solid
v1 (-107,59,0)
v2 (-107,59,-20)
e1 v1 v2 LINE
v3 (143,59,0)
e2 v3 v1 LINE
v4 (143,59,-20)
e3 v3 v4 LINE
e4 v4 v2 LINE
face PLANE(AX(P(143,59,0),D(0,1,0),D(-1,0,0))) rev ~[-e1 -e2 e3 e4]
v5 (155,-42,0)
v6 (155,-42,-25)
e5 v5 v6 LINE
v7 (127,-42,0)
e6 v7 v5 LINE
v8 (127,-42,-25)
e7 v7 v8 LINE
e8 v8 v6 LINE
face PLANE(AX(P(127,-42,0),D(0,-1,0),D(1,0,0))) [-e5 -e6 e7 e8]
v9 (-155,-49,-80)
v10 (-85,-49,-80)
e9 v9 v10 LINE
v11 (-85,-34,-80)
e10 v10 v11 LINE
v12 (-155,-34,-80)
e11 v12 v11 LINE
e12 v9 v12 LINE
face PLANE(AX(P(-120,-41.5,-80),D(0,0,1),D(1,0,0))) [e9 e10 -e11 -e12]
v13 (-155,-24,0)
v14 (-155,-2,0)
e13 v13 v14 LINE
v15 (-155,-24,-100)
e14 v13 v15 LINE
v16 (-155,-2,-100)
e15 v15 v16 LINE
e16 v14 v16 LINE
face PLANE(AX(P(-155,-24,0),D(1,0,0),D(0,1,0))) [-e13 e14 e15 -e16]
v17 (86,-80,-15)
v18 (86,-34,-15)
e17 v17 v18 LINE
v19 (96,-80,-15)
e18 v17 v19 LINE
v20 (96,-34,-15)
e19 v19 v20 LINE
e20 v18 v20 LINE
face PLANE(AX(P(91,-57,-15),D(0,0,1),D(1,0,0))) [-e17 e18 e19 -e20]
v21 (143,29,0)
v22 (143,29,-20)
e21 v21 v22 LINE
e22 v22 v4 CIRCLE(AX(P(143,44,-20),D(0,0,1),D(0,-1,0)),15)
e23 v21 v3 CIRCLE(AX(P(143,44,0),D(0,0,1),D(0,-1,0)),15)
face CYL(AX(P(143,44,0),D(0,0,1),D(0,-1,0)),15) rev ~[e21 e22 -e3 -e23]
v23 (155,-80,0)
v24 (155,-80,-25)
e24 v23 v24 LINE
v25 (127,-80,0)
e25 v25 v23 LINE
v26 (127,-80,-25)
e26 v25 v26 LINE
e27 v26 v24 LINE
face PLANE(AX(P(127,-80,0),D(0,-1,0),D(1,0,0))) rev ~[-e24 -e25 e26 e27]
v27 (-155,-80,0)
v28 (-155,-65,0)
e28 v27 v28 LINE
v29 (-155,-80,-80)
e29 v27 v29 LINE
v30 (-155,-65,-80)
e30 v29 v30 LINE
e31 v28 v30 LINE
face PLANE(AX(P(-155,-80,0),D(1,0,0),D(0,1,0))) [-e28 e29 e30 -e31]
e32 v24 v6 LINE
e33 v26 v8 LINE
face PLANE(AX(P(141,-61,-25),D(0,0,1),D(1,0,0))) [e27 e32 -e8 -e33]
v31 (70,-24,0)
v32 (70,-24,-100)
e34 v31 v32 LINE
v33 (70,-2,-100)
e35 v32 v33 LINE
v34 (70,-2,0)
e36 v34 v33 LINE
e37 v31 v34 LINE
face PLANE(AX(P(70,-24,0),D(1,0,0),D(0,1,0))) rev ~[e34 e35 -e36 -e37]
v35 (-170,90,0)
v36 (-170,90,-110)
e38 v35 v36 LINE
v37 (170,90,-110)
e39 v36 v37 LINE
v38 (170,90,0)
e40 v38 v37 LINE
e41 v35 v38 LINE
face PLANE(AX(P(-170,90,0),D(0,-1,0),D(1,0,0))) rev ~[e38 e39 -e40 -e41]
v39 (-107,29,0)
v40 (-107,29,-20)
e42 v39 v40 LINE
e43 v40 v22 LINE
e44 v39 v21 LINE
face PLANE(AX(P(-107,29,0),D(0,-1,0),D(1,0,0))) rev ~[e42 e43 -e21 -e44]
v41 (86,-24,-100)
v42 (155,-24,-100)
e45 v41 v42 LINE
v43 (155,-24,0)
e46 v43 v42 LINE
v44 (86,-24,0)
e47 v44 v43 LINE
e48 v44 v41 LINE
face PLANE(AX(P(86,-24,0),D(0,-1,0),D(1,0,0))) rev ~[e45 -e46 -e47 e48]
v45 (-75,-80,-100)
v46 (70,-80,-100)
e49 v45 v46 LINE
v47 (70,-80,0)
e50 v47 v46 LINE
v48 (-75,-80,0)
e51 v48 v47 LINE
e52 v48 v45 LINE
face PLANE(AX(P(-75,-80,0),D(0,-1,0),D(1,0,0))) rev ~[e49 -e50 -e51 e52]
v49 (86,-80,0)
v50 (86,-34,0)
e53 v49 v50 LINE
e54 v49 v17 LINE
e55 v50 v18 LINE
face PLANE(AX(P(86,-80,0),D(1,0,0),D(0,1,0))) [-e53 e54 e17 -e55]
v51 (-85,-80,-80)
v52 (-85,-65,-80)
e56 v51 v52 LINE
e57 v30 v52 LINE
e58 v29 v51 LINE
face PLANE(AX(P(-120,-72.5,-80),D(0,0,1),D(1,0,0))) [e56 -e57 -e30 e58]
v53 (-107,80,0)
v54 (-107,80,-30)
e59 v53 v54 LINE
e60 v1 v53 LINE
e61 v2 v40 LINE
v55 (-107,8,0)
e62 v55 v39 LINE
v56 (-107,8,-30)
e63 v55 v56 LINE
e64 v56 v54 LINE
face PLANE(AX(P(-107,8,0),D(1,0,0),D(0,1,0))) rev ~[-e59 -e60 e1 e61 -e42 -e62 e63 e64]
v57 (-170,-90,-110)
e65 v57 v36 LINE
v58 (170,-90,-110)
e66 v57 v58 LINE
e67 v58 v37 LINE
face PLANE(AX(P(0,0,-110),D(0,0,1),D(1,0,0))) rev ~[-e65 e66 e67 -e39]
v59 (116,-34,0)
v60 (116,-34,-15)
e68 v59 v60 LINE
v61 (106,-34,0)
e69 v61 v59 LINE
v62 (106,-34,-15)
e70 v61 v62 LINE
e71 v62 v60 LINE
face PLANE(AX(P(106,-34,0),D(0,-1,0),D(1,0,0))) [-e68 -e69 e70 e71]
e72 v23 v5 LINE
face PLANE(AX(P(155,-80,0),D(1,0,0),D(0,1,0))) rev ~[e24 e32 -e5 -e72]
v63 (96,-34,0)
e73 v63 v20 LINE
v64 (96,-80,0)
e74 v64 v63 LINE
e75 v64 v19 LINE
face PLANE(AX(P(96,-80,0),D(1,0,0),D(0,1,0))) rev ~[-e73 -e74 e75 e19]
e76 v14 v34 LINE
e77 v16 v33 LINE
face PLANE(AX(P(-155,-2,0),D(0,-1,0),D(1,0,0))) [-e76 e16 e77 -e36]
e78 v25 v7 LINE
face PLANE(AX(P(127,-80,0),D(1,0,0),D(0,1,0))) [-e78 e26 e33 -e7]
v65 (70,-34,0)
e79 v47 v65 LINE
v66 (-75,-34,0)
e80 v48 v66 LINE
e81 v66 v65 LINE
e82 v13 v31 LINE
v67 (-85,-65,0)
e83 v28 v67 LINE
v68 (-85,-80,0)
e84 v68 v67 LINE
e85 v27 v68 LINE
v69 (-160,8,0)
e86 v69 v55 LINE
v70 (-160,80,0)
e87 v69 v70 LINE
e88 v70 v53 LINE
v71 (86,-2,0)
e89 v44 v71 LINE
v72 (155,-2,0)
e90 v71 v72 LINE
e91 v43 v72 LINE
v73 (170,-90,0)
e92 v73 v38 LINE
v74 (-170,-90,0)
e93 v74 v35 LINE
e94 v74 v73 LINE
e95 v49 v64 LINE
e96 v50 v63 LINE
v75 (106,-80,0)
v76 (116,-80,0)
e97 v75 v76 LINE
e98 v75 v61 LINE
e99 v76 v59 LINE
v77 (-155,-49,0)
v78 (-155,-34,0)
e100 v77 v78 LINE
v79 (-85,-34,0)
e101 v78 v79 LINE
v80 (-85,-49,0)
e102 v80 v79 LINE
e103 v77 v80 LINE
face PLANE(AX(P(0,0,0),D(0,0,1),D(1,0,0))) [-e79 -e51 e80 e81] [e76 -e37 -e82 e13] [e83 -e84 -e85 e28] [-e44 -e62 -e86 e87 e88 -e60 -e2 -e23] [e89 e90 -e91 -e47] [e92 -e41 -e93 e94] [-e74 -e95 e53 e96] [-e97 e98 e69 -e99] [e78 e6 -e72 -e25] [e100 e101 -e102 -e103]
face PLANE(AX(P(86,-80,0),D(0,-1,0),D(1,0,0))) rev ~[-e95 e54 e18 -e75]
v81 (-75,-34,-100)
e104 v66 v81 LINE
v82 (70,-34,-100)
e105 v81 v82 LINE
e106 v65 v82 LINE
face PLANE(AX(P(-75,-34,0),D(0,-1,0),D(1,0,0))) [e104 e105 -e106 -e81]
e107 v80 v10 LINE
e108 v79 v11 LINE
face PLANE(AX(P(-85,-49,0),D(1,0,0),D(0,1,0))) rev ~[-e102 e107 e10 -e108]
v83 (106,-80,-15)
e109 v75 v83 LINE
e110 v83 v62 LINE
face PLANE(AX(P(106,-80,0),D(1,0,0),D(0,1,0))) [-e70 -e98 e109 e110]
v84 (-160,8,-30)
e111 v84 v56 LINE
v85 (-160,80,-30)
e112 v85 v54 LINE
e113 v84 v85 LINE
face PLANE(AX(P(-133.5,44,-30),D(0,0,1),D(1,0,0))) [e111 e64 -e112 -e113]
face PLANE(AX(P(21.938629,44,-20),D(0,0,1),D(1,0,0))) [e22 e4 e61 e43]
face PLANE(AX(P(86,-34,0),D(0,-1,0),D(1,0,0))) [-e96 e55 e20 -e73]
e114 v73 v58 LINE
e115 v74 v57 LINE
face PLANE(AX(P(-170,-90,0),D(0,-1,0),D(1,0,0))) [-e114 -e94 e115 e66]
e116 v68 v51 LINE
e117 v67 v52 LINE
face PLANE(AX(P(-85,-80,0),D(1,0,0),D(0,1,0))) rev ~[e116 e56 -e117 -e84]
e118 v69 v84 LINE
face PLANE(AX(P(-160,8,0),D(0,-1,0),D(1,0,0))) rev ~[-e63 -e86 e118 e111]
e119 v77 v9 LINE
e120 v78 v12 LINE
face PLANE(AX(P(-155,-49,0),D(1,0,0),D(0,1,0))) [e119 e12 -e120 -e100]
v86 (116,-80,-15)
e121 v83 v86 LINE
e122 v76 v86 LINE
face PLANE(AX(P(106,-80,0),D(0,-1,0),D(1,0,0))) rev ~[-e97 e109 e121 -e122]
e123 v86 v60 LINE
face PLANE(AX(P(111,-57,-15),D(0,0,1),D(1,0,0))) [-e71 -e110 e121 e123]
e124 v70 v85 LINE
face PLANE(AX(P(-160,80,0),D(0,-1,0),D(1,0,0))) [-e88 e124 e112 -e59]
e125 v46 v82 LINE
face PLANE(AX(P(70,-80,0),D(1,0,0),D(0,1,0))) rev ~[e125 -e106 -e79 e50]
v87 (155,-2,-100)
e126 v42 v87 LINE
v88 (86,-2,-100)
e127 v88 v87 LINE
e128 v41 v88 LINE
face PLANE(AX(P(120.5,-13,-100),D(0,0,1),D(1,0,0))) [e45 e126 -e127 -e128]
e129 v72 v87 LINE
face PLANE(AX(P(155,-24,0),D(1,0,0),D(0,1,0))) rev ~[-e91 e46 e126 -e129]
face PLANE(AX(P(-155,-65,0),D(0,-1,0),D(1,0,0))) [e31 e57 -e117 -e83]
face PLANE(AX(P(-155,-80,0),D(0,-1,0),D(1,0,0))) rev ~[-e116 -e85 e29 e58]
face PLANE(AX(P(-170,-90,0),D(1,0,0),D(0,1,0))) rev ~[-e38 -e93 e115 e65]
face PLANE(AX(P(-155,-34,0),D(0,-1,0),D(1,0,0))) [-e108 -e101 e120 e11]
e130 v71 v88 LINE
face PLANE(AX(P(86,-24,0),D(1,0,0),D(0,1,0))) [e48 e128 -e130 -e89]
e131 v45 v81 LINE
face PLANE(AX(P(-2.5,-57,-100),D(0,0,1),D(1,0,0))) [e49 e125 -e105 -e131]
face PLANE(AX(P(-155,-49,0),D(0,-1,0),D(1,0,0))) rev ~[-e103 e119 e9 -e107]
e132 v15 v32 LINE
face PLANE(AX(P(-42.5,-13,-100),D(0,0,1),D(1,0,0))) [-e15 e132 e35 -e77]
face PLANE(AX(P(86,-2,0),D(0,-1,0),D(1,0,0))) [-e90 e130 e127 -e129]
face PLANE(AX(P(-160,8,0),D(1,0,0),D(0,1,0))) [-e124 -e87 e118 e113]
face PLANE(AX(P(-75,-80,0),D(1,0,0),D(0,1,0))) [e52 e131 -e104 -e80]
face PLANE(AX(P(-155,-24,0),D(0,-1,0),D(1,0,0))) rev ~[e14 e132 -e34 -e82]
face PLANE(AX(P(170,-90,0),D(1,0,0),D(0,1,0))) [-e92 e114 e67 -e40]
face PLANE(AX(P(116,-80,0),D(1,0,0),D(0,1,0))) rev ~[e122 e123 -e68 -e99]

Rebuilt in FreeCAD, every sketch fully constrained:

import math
import FreeCAD as App
import Part
import Sketcher
Q = App.Units.Quantity

doc = App.newDocument("Part")
params = doc.addObject("Spreadsheet::Sheet", "Params")
for row, (alias, value) in enumerate([
    ("sketch1_width", "340 mm"),
    ("sketch1_height", "180 mm"),
    ("pad1_length", "110 mm"),
    ("sketch2_width", "53 mm"),
    ("sketch2_height", "72 mm"),
    ("pocket1_length", "30 mm"),
    ("sketch3_radius", "15 mm"),
    ("sketch3_width", "250 mm"),
    ("pocket2_length", "20 mm"),
    ("sketch4_width", "225 mm"),
    ("sketch4_height", "22 mm"),
    ("pocket3_length", "100 mm"),
    ("sketch5_width", "70 mm"),
    ("sketch5_height", "15 mm"),
    ("pocket4_length", "80 mm"),
    ("sketch6_width", "145 mm"),
    ("sketch6_height", "46 mm"),
    ("pocket5_length", "100 mm"),
    ("sketch7_width", "69 mm"),
    ("sketch7_height", "22 mm"),
    ("pocket6_length", "100 mm"),
    ("sketch8_width", "10 mm"),
    ("sketch8_height", "46 mm"),
    ("pocket7_length", "15 mm"),
    ("sketch9_width", "28 mm"),
    ("sketch9_height", "38 mm"),
    ("pocket8_length", "25 mm"),
], start=1):
    params.set(f"A{row}", alias)
    params.set(f"B{row}", "=" + value)
    params.setAlias(f"B{row}", alias)

body = doc.addObject("PartDesign::Body", "Body")

# Sketch on XY plane
sketch1 = body.newObject("Sketcher::SketchObject", "Sketch")
sketch1.AttachmentSupport = (doc.getObject("XY_Plane"), [""])
sketch1.MapMode = "FlatFace"
sketch1.addGeometry([
    Part.LineSegment(App.Vector(-170, 90, 0), App.Vector(-170, -90, 0)),
    Part.LineSegment(App.Vector(-170, -90, 0), App.Vector(170, -90, 0)),
    Part.LineSegment(App.Vector(170, -90, 0), App.Vector(170, 90, 0)),
    Part.LineSegment(App.Vector(170, 90, 0), App.Vector(-170, 90, 0)),
], False)
sketch1.addConstraint([
    Sketcher.Constraint("Coincident", 0, 2, 1, 1),
    Sketcher.Constraint("Coincident", 1, 2, 2, 1),
    Sketcher.Constraint("Coincident", 2, 2, 3, 1),
    Sketcher.Constraint("Coincident", 3, 2, 0, 1),
    Sketcher.Constraint("Vertical", 0),
    Sketcher.Constraint("Horizontal", 1),
    Sketcher.Constraint("Vertical", 2),
    Sketcher.Constraint("Horizontal", 3),
    Sketcher.Constraint("Symmetric", 0, 2, 2, 2, -1, 1),
    Sketcher.Constraint("DistanceX", 1, 1, 1, 2, Q("340 mm")),
    Sketcher.Constraint("DistanceY", 0, 2, 0, 1, Q("180 mm")),
])
sketch1.setExpression("Constraints[9]", "Params.sketch1_width")
sketch1.setExpression("Constraints[10]", "Params.sketch1_height")
pad1 = body.newObject("PartDesign::Pad", "Pad")
pad1.Profile = sketch1
pad1.setExpression("Length", "Params.pad1_length")
pad1.Reversed = True

# Sketch on XY plane
sketch2 = body.newObject("Sketcher::SketchObject", "Sketch001")
sketch2.AttachmentSupport = (doc.getObject("XY_Plane"), [""])
sketch2.MapMode = "FlatFace"
sketch2.addGeometry([
    Part.LineSegment(App.Vector(-160, 80, 0), App.Vector(-160, 8, 0)),
    Part.LineSegment(App.Vector(-160, 8, 0), App.Vector(-107, 8, 0)),
    Part.LineSegment(App.Vector(-107, 8, 0), App.Vector(-107, 80, 0)),
    Part.LineSegment(App.Vector(-107, 80, 0), App.Vector(-160, 80, 0)),
], False)
sketch2.addConstraint([
    Sketcher.Constraint("Coincident", 0, 2, 1, 1),
    Sketcher.Constraint("Coincident", 1, 2, 2, 1),
    Sketcher.Constraint("Coincident", 2, 2, 3, 1),
    Sketcher.Constraint("Coincident", 3, 2, 0, 1),
    Sketcher.Constraint("Vertical", 0),
    Sketcher.Constraint("Horizontal", 1),
    Sketcher.Constraint("Vertical", 2),
    Sketcher.Constraint("Horizontal", 3),
    Sketcher.Constraint("DistanceX", 1, 1, 1, 2, Q("53 mm")),
    Sketcher.Constraint("DistanceY", 0, 2, 0, 1, Q("72 mm")),
    Sketcher.Constraint("DistanceX", 0, 2, -1, 1, Q("160 mm")),
    Sketcher.Constraint("DistanceY", -1, 1, 0, 2, Q("8 mm")),
])
sketch2.setExpression("Constraints[8]", "Params.sketch2_width")
sketch2.setExpression("Constraints[9]", "Params.sketch2_height")
pocket1 = body.newObject("PartDesign::Pocket", "Pocket")
pocket1.Profile = sketch2
pocket1.setExpression("Length", "Params.pocket1_length")

# Sketch on XY plane
sketch3 = body.newObject("Sketcher::SketchObject", "Sketch002")
sketch3.AttachmentSupport = (doc.getObject("XY_Plane"), [""])
sketch3.MapMode = "FlatFace"
sketch3.addGeometry([
    Part.LineSegment(App.Vector(143, 59, 0), App.Vector(-107, 59, 0)),
    Part.LineSegment(App.Vector(-107, 59, 0), App.Vector(-107, 29, 0)),
    Part.LineSegment(App.Vector(-107, 29, 0), App.Vector(143, 29, 0)),
    Part.ArcOfCircle(Part.Circle(App.Vector(143, 44, 0), App.Vector(0, 0, 1), 15), math.radians(-90), math.radians(90)),
], False)
sketch3.addConstraint([
    Sketcher.Constraint("Coincident", 0, 2, 1, 1),
    Sketcher.Constraint("Coincident", 1, 2, 2, 1),
    Sketcher.Constraint("Tangent", 2, 2, 3, 1),
    Sketcher.Constraint("Tangent", 3, 2, 0, 1),
    Sketcher.Constraint("Horizontal", 0),
    Sketcher.Constraint("Vertical", 1),
    Sketcher.Constraint("Horizontal", 2),
    Sketcher.Constraint("Radius", 3, Q("15 mm")),
    Sketcher.Constraint("DistanceX", 0, 2, 0, 1, Q("250 mm")),
    Sketcher.Constraint("DistanceX", -1, 1, 3, 3, Q("143 mm")),
    Sketcher.Constraint("DistanceY", -1, 1, 3, 3, Q("44 mm")),
])
sketch3.setExpression("Constraints[7]", "Params.sketch3_radius")
sketch3.setExpression("Constraints[8]", "Params.sketch3_width")
pocket2 = body.newObject("PartDesign::Pocket", "Pocket001")
pocket2.Profile = sketch3
pocket2.setExpression("Length", "Params.pocket2_length")

# Sketch on XY plane
sketch4 = body.newObject("Sketcher::SketchObject", "Sketch003")
sketch4.AttachmentSupport = (doc.getObject("XY_Plane"), [""])
sketch4.MapMode = "FlatFace"
sketch4.addGeometry([
    Part.LineSegment(App.Vector(-155, -2, 0), App.Vector(-155, -24, 0)),
    Part.LineSegment(App.Vector(-155, -24, 0), App.Vector(70, -24, 0)),
    Part.LineSegment(App.Vector(70, -24, 0), App.Vector(70, -2, 0)),
    Part.LineSegment(App.Vector(70, -2, 0), App.Vector(-155, -2, 0)),
], False)
sketch4.addConstraint([
    Sketcher.Constraint("Coincident", 0, 2, 1, 1),
    Sketcher.Constraint("Coincident", 1, 2, 2, 1),
    Sketcher.Constraint("Coincident", 2, 2, 3, 1),
    Sketcher.Constraint("Coincident", 3, 2, 0, 1),
    Sketcher.Constraint("Vertical", 0),
    Sketcher.Constraint("Horizontal", 1),
    Sketcher.Constraint("Vertical", 2),
    Sketcher.Constraint("Horizontal", 3),
    Sketcher.Constraint("DistanceX", 1, 1, 1, 2, Q("225 mm")),
    Sketcher.Constraint("DistanceY", 0, 2, 0, 1, Q("22 mm")),
    Sketcher.Constraint("DistanceX", 0, 2, -1, 1, Q("155 mm")),
    Sketcher.Constraint("DistanceY", 0, 2, -1, 1, Q("24 mm")),
])
sketch4.setExpression("Constraints[8]", "Params.sketch4_width")
sketch4.setExpression("Constraints[9]", "Params.sketch4_height")
pocket3 = body.newObject("PartDesign::Pocket", "Pocket002")
pocket3.Profile = sketch4
pocket3.setExpression("Length", "Params.pocket3_length")

# Sketch on XY plane
sketch5 = body.newObject("Sketcher::SketchObject", "Sketch004")
sketch5.AttachmentSupport = (doc.getObject("XY_Plane"), [""])
sketch5.MapMode = "FlatFace"
sketch5.addGeometry([
    Part.LineSegment(App.Vector(-155, -65, 0), App.Vector(-155, -80, 0)),  # 0
    Part.LineSegment(App.Vector(-155, -80, 0), App.Vector(-85, -80, 0)),  # 1
    Part.LineSegment(App.Vector(-85, -80, 0), App.Vector(-85, -65, 0)),  # 2
    Part.LineSegment(App.Vector(-85, -65, 0), App.Vector(-155, -65, 0)),  # 3
    Part.LineSegment(App.Vector(-155, -34, 0), App.Vector(-155, -49, 0)),  # 4
    Part.LineSegment(App.Vector(-155, -49, 0), App.Vector(-85, -49, 0)),  # 5
    Part.LineSegment(App.Vector(-85, -49, 0), App.Vector(-85, -34, 0)),  # 6
    Part.LineSegment(App.Vector(-85, -34, 0), App.Vector(-155, -34, 0)),  # 7
], False)
sketch5.addConstraint([
    Sketcher.Constraint("Coincident", 0, 2, 1, 1),
    Sketcher.Constraint("Coincident", 1, 2, 2, 1),
    Sketcher.Constraint("Coincident", 2, 2, 3, 1),
    Sketcher.Constraint("Coincident", 3, 2, 0, 1),
    Sketcher.Constraint("Coincident", 4, 2, 5, 1),
    Sketcher.Constraint("Coincident", 5, 2, 6, 1),
    Sketcher.Constraint("Coincident", 6, 2, 7, 1),
    Sketcher.Constraint("Coincident", 7, 2, 4, 1),
    Sketcher.Constraint("Vertical", 0),
    Sketcher.Constraint("Horizontal", 1),
    Sketcher.Constraint("Vertical", 2),
    Sketcher.Constraint("Horizontal", 3),
    Sketcher.Constraint("Vertical", 4),
    Sketcher.Constraint("Horizontal", 5),
    Sketcher.Constraint("Vertical", 6),
    Sketcher.Constraint("Horizontal", 7),
    Sketcher.Constraint("Vertical", 3, 2, 4, 2),
    Sketcher.Constraint("Vertical", 2, 2, 5, 2),
    Sketcher.Constraint("Equal", 2, 4),
    Sketcher.Constraint("DistanceX", 1, 1, 1, 2, Q("70 mm")),
    Sketcher.Constraint("DistanceY", 0, 2, 0, 1, Q("15 mm")),
    Sketcher.Constraint("DistanceX", 0, 2, -1, 1, Q("155 mm")),
    Sketcher.Constraint("DistanceY", 0, 2, -1, 1, Q("80 mm")),
    Sketcher.Constraint("DistanceY", 4, 2, -1, 1, Q("49 mm")),
])
sketch5.setExpression("Constraints[19]", "Params.sketch5_width")
sketch5.setExpression("Constraints[20]", "Params.sketch5_height")
pocket4 = body.newObject("PartDesign::Pocket", "Pocket003")
pocket4.Profile = sketch5
pocket4.setExpression("Length", "Params.pocket4_length")

# Sketch on XY plane
sketch6 = body.newObject("Sketcher::SketchObject", "Sketch005")
sketch6.AttachmentSupport = (doc.getObject("XY_Plane"), [""])
sketch6.MapMode = "FlatFace"
sketch6.addGeometry([
    Part.LineSegment(App.Vector(-75, -34, 0), App.Vector(-75, -80, 0)),
    Part.LineSegment(App.Vector(-75, -80, 0), App.Vector(70, -80, 0)),
    Part.LineSegment(App.Vector(70, -80, 0), App.Vector(70, -34, 0)),
    Part.LineSegment(App.Vector(70, -34, 0), App.Vector(-75, -34, 0)),
], False)
sketch6.addConstraint([
    Sketcher.Constraint("Coincident", 0, 2, 1, 1),
    Sketcher.Constraint("Coincident", 1, 2, 2, 1),
    Sketcher.Constraint("Coincident", 2, 2, 3, 1),
    Sketcher.Constraint("Coincident", 3, 2, 0, 1),
    Sketcher.Constraint("Vertical", 0),
    Sketcher.Constraint("Horizontal", 1),
    Sketcher.Constraint("Vertical", 2),
    Sketcher.Constraint("Horizontal", 3),
    Sketcher.Constraint("DistanceX", 1, 1, 1, 2, Q("145 mm")),
    Sketcher.Constraint("DistanceY", 0, 2, 0, 1, Q("46 mm")),
    Sketcher.Constraint("DistanceX", 0, 2, -1, 1, Q("75 mm")),
    Sketcher.Constraint("DistanceY", 0, 2, -1, 1, Q("80 mm")),
])
sketch6.setExpression("Constraints[8]", "Params.sketch6_width")
sketch6.setExpression("Constraints[9]", "Params.sketch6_height")
pocket5 = body.newObject("PartDesign::Pocket", "Pocket004")
pocket5.Profile = sketch6
pocket5.setExpression("Length", "Params.pocket5_length")

# Sketch on XY plane
sketch7 = body.newObject("Sketcher::SketchObject", "Sketch006")
sketch7.AttachmentSupport = (doc.getObject("XY_Plane"), [""])
sketch7.MapMode = "FlatFace"
sketch7.addGeometry([
    Part.LineSegment(App.Vector(86, -2, 0), App.Vector(86, -24, 0)),
    Part.LineSegment(App.Vector(86, -24, 0), App.Vector(155, -24, 0)),
    Part.LineSegment(App.Vector(155, -24, 0), App.Vector(155, -2, 0)),
    Part.LineSegment(App.Vector(155, -2, 0), App.Vector(86, -2, 0)),
], False)
sketch7.addConstraint([
    Sketcher.Constraint("Coincident", 0, 2, 1, 1),
    Sketcher.Constraint("Coincident", 1, 2, 2, 1),
    Sketcher.Constraint("Coincident", 2, 2, 3, 1),
    Sketcher.Constraint("Coincident", 3, 2, 0, 1),
    Sketcher.Constraint("Vertical", 0),
    Sketcher.Constraint("Horizontal", 1),
    Sketcher.Constraint("Vertical", 2),
    Sketcher.Constraint("Horizontal", 3),
    Sketcher.Constraint("DistanceX", 1, 1, 1, 2, Q("69 mm")),
    Sketcher.Constraint("DistanceY", 0, 2, 0, 1, Q("22 mm")),
    Sketcher.Constraint("DistanceX", -1, 1, 0, 2, Q("86 mm")),
    Sketcher.Constraint("DistanceY", 0, 2, -1, 1, Q("24 mm")),
])
sketch7.setExpression("Constraints[8]", "Params.sketch7_width")
sketch7.setExpression("Constraints[9]", "Params.sketch7_height")
pocket6 = body.newObject("PartDesign::Pocket", "Pocket005")
pocket6.Profile = sketch7
pocket6.setExpression("Length", "Params.pocket6_length")

# Sketch on XY plane
sketch8 = body.newObject("Sketcher::SketchObject", "Sketch007")
sketch8.AttachmentSupport = (doc.getObject("XY_Plane"), [""])
sketch8.MapMode = "FlatFace"
sketch8.addGeometry([
    Part.LineSegment(App.Vector(86, -34, 0), App.Vector(86, -80, 0)),  # 0
    Part.LineSegment(App.Vector(86, -80, 0), App.Vector(96, -80, 0)),  # 1
    Part.LineSegment(App.Vector(96, -80, 0), App.Vector(96, -34, 0)),  # 2
    Part.LineSegment(App.Vector(96, -34, 0), App.Vector(86, -34, 0)),  # 3
    Part.LineSegment(App.Vector(106, -34, 0), App.Vector(106, -80, 0)),  # 4
    Part.LineSegment(App.Vector(106, -80, 0), App.Vector(116, -80, 0)),  # 5
    Part.LineSegment(App.Vector(116, -80, 0), App.Vector(116, -34, 0)),  # 6
    Part.LineSegment(App.Vector(116, -34, 0), App.Vector(106, -34, 0)),  # 7
], False)
sketch8.addConstraint([
    Sketcher.Constraint("Coincident", 0, 2, 1, 1),
    Sketcher.Constraint("Coincident", 1, 2, 2, 1),
    Sketcher.Constraint("Coincident", 2, 2, 3, 1),
    Sketcher.Constraint("Coincident", 3, 2, 0, 1),
    Sketcher.Constraint("Coincident", 4, 2, 5, 1),
    Sketcher.Constraint("Coincident", 5, 2, 6, 1),
    Sketcher.Constraint("Coincident", 6, 2, 7, 1),
    Sketcher.Constraint("Coincident", 7, 2, 4, 1),
    Sketcher.Constraint("Vertical", 0),
    Sketcher.Constraint("Horizontal", 1),
    Sketcher.Constraint("Vertical", 2),
    Sketcher.Constraint("Horizontal", 3),
    Sketcher.Constraint("Vertical", 4),
    Sketcher.Constraint("Horizontal", 5),
    Sketcher.Constraint("Vertical", 6),
    Sketcher.Constraint("Horizontal", 7),
    Sketcher.Constraint("Horizontal", 1, 2, 4, 2),
    Sketcher.Constraint("Horizontal", 3, 2, 6, 2),
    Sketcher.Constraint("Equal", 3, 5),
    Sketcher.Constraint("DistanceX", 1, 1, 1, 2, Q("10 mm")),
    Sketcher.Constraint("DistanceY", 0, 2, 0, 1, Q("46 mm")),
    Sketcher.Constraint("DistanceX", -1, 1, 0, 2, Q("86 mm")),
    Sketcher.Constraint("DistanceY", 0, 2, -1, 1, Q("80 mm")),
    Sketcher.Constraint("DistanceX", -1, 1, 4, 2, Q("106 mm")),
])
sketch8.setExpression("Constraints[19]", "Params.sketch8_width")
sketch8.setExpression("Constraints[20]", "Params.sketch8_height")
pocket7 = body.newObject("PartDesign::Pocket", "Pocket006")
pocket7.Profile = sketch8
pocket7.setExpression("Length", "Params.pocket7_length")

# Sketch on XY plane
sketch9 = body.newObject("Sketcher::SketchObject", "Sketch008")
sketch9.AttachmentSupport = (doc.getObject("XY_Plane"), [""])
sketch9.MapMode = "FlatFace"
sketch9.addGeometry([
    Part.LineSegment(App.Vector(127, -42, 0), App.Vector(127, -80, 0)),
    Part.LineSegment(App.Vector(127, -80, 0), App.Vector(155, -80, 0)),
    Part.LineSegment(App.Vector(155, -80, 0), App.Vector(155, -42, 0)),
    Part.LineSegment(App.Vector(155, -42, 0), App.Vector(127, -42, 0)),
], False)
sketch9.addConstraint([
    Sketcher.Constraint("Coincident", 0, 2, 1, 1),
    Sketcher.Constraint("Coincident", 1, 2, 2, 1),
    Sketcher.Constraint("Coincident", 2, 2, 3, 1),
    Sketcher.Constraint("Coincident", 3, 2, 0, 1),
    Sketcher.Constraint("Vertical", 0),
    Sketcher.Constraint("Horizontal", 1),
    Sketcher.Constraint("Vertical", 2),
    Sketcher.Constraint("Horizontal", 3),
    Sketcher.Constraint("DistanceX", 1, 1, 1, 2, Q("28 mm")),
    Sketcher.Constraint("DistanceY", 0, 2, 0, 1, Q("38 mm")),
    Sketcher.Constraint("DistanceX", -1, 1, 0, 2, Q("127 mm")),
    Sketcher.Constraint("DistanceY", 0, 2, -1, 1, Q("80 mm")),
])
sketch9.setExpression("Constraints[8]", "Params.sketch9_width")
sketch9.setExpression("Constraints[9]", "Params.sketch9_height")
pocket8 = body.newObject("PartDesign::Pocket", "Pocket007")
pocket8.Profile = sketch9
pocket8.setExpression("Length", "Params.pocket8_length")

doc.recompute()
